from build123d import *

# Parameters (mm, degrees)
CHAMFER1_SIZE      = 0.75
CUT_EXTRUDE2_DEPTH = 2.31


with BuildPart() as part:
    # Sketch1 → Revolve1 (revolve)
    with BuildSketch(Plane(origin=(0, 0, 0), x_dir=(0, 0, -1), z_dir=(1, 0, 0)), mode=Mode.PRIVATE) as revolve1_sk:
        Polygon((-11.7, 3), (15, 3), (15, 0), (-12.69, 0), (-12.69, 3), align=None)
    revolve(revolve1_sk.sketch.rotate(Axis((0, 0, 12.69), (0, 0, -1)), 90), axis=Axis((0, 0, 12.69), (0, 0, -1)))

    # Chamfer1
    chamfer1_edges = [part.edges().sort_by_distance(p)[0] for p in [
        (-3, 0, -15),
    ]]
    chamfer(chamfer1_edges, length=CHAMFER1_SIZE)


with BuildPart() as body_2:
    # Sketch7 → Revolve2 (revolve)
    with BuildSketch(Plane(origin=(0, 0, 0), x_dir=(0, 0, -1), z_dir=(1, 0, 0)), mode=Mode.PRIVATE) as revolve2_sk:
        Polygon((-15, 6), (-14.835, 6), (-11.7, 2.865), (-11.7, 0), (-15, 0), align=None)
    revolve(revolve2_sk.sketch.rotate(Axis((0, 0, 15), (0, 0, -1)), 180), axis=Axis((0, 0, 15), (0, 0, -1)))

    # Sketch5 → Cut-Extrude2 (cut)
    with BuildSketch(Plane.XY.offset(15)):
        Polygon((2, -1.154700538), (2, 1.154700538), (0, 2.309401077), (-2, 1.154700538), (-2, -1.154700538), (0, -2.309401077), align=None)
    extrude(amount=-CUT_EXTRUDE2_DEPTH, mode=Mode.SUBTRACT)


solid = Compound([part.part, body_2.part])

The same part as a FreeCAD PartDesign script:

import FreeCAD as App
import Part
import Sketcher

V = App.Vector
Q = App.Units.Quantity


def edges_at(feature, points):
    """Names of the edges that pass closest to the given points."""
    edges = feature.Shape.Edges
    near = lambda p: min(range(len(edges)), key=lambda i: edges[i].distToShape(Part.Vertex(*p))[0])
    return sorted({f"Edge{near(p) + 1}" for p in points})


def add_polygon(sketch, points):
    """Adds a closed chain of lines whose ends are joined by coincident constraints."""
    first, n = sketch.GeometryCount, len(points)
    for a, b in zip(points, points[1:] + points[:1]):
        sketch.addGeometry(Part.LineSegment(App.Vector(*a, 0), App.Vector(*b, 0)), False)
    for i in range(n):
        sketch.addConstraint(Sketcher.Constraint("Coincident", first + i, 2, first + (i + 1) % n, 1))

doc = App.newDocument("Part")
body = doc.addObject("PartDesign::Body", "Body")

# Sketch on YZ plane
sketch1 = body.newObject("Sketcher::SketchObject", "Sketch")
sketch1.AttachmentSupport = (doc.getObject("YZ_Plane"), [""])
sketch1.MapMode = "FlatFace"
add_polygon(sketch1, [(3, -15), (3, 12.7), (0, 12.7), (0, -15)])  # lines 0-3
sketch1.addConstraint([
    Sketcher.Constraint("Vertical", 0),
    Sketcher.Constraint("Horizontal", 1),
    Sketcher.Constraint("Vertical", 2),
    Sketcher.Constraint("Horizontal", 3),
    Sketcher.Constraint("PointOnObject", 1, 2, -2),
    Sketcher.Constraint("DistanceX", 1, 2, 1, 1, 3.0),
    Sketcher.Constraint("DistanceY", 2, 2, -1, 1, 15.0),
    Sketcher.Constraint("DistanceY", 0, 1, 0, 2, 27.69),
])
revolution = body.newObject("PartDesign::Revolution", "Revolution")
revolution.Profile = sketch1
revolution.ReferenceAxis = (sketch1, ["V_Axis"])
revolution.Angle = 360
doc.recompute()

chamfer = body.newObject("PartDesign::Chamfer", "Chamfer")
chamfer.Base = (revolution, edges_at(revolution, [(-3, 0, -15)]))
chamfer.Size = 0.75
body2 = doc.addObject("PartDesign::Body", "Body001")

# Sketch on YZ plane
sketch2 = body2.newObject("Sketcher::SketchObject", "Sketch001")
sketch2.AttachmentSupport = (doc.getObject("YZ_Plane001"), [""])
sketch2.MapMode = "FlatFace"
add_polygon(sketch2, [(6, 14.84), (6, 15), (0, 15), (0, 11.7), (2.87, 11.7)])  # lines 0-4
sketch2.addConstraint([
    Sketcher.Constraint("Vertical", 0),
    Sketcher.Constraint("Horizontal", 1),
    Sketcher.Constraint("Vertical", 2),
    Sketcher.Constraint("Horizontal", 3),
    Sketcher.Constraint("PointOnObject", 1, 2, -2),
    Sketcher.Constraint("DistanceX", 1, 2, 1, 1, 6.0),
    Sketcher.Constraint("Angle", 4, Q("45 deg")),
    Sketcher.Constraint("DistanceY", 2, 2, 2, 1, 3.3),
    Sketcher.Constraint("DistanceY", -1, 1, 0, 2, 15.0),
    Sketcher.Constraint("DistanceX", 3, 1, 3, 2, 2.865),
])
revolution2 = body2.newObject("PartDesign::Revolution", "Revolution001")
revolution2.Profile = sketch2
revolution2.ReferenceAxis = (sketch2, ["V_Axis"])
revolution2.Angle = 360

# Sketch on XY plane
sketch3 = body2.newObject("Sketcher::SketchObject", "Sketch002")
sketch3.AttachmentSupport = (doc.getObject("XY_Plane001"), [""])
sketch3.MapMode = "FlatFace"
sketch3.AttachmentOffset = App.Placement(V(0, 0, 15), App.Rotation())
add_polygon(sketch3, [(2, -1.2), (2, 1.2), (0, 2.3), (-2, 1.2), (-2, -1.2), (0, -2.3)])  # lines 0-5
sketch3.addConstraint([
    Sketcher.Constraint("Vertical", 0),
    Sketcher.Constraint("Vertical", 3),
    Sketcher.Constraint("Symmetric", 0, 2, 3, 2, -1, 1),
    Sketcher.Constraint("Symmetric", 1, 2, 4, 2, -1, 1),
    Sketcher.Constraint("PointOnObject", 1, 2, -2),
    Sketcher.Constraint("Parallel", 2, 5),
    Sketcher.Constraint("Horizontal", 0, 2, 2, 2),
    Sketcher.Constraint("Angle", 1, Q("150 deg")),
    Sketcher.Constraint("DistanceX", -1, 1, 0, 2, 2.0),
    Sketcher.Constraint("DistanceY", 0, 1, 0, 2, 2.309401),
])
pocket1 = body2.newObject("PartDesign::Pocket", "Pocket")
pocket1.Profile = sketch3
pocket1.Length = 2.31

doc.recompute()
